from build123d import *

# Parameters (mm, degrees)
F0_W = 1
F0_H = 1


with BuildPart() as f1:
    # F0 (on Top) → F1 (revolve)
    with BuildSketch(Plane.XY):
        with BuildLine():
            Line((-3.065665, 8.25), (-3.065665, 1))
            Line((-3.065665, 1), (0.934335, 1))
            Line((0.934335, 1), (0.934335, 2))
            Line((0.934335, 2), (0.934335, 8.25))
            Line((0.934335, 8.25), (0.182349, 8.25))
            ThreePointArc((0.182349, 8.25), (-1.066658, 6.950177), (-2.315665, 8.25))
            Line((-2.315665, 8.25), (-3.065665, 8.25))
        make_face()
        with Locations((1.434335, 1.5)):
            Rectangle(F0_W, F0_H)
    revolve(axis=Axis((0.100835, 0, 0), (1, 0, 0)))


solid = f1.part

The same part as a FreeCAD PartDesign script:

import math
import FreeCAD as App
import Part
import Sketcher
Q = App.Units.Quantity

doc = App.newDocument("Part")
body = doc.addObject("PartDesign::Body", "Body")

# Sketch on XY plane
sketch1 = doc.addObject("Sketcher::SketchObject", "Sketch")
body.addObject(sketch1)
sketch1.AttachmentSupport = (doc.XY_Plane, [""])
sketch1.MapMode = "FlatFace"
sketch1.addGeometry(Part.LineSegment(App.Vector(-3.1, 8.2, 0), App.Vector(-3.1, 1, 0)), False)
sketch1.addGeometry(Part.LineSegment(App.Vector(-3.1, 1, 0), App.Vector(1.9, 1, 0)), False)
sketch1.addGeometry(Part.LineSegment(App.Vector(1.9, 1, 0), App.Vector(1.9, 2, 0)), False)
sketch1.addGeometry(Part.LineSegment(App.Vector(1.9, 2, 0), App.Vector(0.9, 2, 0)), False)
sketch1.addGeometry(Part.LineSegment(App.Vector(0.9, 2, 0), App.Vector(0.9, 8.2, 0)), False)
sketch1.addGeometry(Part.LineSegment(App.Vector(0.9, 8.2, 0), App.Vector(0.2, 8.2, 0)), False)
sketch1.addGeometry(Part.ArcOfCircle(Part.Circle(App.Vector(-1.1, 8.2, 0), App.Vector(0, 0, 1), 1.3), math.radians(178), math.radians(362)), False)
sketch1.addGeometry(Part.LineSegment(App.Vector(-2.3, 8.2, 0), App.Vector(-3.1, 8.2, 0)), False)
sketch1.addConstraint(Sketcher.Constraint("Coincident", 0, 2, 1, 1))
sketch1.addConstraint(Sketcher.Constraint("Coincident", 1, 2, 2, 1))
sketch1.addConstraint(Sketcher.Constraint("Coincident", 2, 2, 3, 1))
sketch1.addConstraint(Sketcher.Constraint("Coincident", 3, 2, 4, 1))
sketch1.addConstraint(Sketcher.Constraint("Coincident", 4, 2, 5, 1))
sketch1.addConstraint(Sketcher.Constraint("Coincident", 5, 2, 6, 2))
sketch1.addConstraint(Sketcher.Constraint("Coincident", 6, 1, 7, 1))
sketch1.addConstraint(Sketcher.Constraint("Coincident", 7, 2, 0, 1))
sketch1.addConstraint(Sketcher.Constraint("Vertical", 0))
sketch1.addConstraint(Sketcher.Constraint("Horizontal", 1))
sketch1.addConstraint(Sketcher.Constraint("Vertical", 2))
sketch1.addConstraint(Sketcher.Constraint("Horizontal", 3))
sketch1.addConstraint(Sketcher.Constraint("Vertical", 4))
sketch1.addConstraint(Sketcher.Constraint("Horizontal", 5))
sketch1.addConstraint(Sketcher.Constraint("Horizontal", 7))
sketch1.addConstraint(Sketcher.Constraint("Horizontal", 5, 2, 6, 1))
sketch1.addConstraint(Sketcher.Constraint("Equal", 3, 2))
sketch1.addConstraint(Sketcher.Constraint("DistanceX", 1, 1, 1, 2, Q("5 mm")))
sketch1.addConstraint(Sketcher.Constraint("DistanceX", 3, 2, 3, 1, Q("1 mm")))
sketch1.addConstraint(Sketcher.Constraint("Radius", 6, Q("1.25 mm")))
sketch1.addConstraint(Sketcher.Constraint("DistanceY", -1, 1, 0, 2, Q("1 mm")))
sketch1.addConstraint(Sketcher.Constraint("DistanceX", 7, 2, 7, 1, Q("0.75 mm")))
sketch1.addConstraint(Sketcher.Constraint("DistanceY", 0, 2, 0, 1, Q("7.25 mm")))
sketch1.addConstraint(Sketcher.Constraint("DistanceX", 5, 2, 5, 1, Q("0.751986 mm")))
sketch1.addConstraint(Sketcher.Constraint("DistanceX", 6, 3, -1, 1, Q("1.066658 mm")))
revolution = doc.addObject("PartDesign::Revolution", "Revolution")
body.addObject(revolution)
revolution.Profile = sketch1
revolution.ReferenceAxis = (sketch1, ["H_Axis"])
revolution.Angle = 360

doc.recompute()
